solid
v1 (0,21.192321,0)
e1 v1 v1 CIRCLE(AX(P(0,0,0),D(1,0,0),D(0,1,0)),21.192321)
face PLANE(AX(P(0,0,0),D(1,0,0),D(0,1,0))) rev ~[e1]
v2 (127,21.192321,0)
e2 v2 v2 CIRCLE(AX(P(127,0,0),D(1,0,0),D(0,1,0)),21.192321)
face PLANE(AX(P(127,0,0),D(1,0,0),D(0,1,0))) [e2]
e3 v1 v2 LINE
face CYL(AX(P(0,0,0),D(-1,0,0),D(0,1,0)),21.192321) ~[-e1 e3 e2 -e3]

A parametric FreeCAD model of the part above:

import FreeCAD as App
import Part
import Sketcher
from FreeCAD import Vector
Q = App.Units.Quantity

doc = App.newDocument("Part")
body = doc.addObject("PartDesign::Body", "Body")

sketch1 = doc.addObject("Sketcher::SketchObject", "Sketch")
body.addObject(sketch1)
sketch1.AttachmentSupport = (doc.YZ_Plane, [""])
sketch1.MapMode = "FlatFace"
sketch1.addGeometry(Part.Circle(Vector(0, 0, 0), Vector(0, 0, 1), 21.192321), False)
sketch1.addConstraint([
    Sketcher.Constraint("Coincident", 0, 3, -1, 1),
    Sketcher.Constraint("Diameter", 0, Q("42.384642 mm")),
])
pad1 = doc.addObject("PartDesign::Pad", "Pad")
body.addObject(pad1)
pad1.Profile = sketch1
pad1.Length = Q("5 in")

doc.recompute()
